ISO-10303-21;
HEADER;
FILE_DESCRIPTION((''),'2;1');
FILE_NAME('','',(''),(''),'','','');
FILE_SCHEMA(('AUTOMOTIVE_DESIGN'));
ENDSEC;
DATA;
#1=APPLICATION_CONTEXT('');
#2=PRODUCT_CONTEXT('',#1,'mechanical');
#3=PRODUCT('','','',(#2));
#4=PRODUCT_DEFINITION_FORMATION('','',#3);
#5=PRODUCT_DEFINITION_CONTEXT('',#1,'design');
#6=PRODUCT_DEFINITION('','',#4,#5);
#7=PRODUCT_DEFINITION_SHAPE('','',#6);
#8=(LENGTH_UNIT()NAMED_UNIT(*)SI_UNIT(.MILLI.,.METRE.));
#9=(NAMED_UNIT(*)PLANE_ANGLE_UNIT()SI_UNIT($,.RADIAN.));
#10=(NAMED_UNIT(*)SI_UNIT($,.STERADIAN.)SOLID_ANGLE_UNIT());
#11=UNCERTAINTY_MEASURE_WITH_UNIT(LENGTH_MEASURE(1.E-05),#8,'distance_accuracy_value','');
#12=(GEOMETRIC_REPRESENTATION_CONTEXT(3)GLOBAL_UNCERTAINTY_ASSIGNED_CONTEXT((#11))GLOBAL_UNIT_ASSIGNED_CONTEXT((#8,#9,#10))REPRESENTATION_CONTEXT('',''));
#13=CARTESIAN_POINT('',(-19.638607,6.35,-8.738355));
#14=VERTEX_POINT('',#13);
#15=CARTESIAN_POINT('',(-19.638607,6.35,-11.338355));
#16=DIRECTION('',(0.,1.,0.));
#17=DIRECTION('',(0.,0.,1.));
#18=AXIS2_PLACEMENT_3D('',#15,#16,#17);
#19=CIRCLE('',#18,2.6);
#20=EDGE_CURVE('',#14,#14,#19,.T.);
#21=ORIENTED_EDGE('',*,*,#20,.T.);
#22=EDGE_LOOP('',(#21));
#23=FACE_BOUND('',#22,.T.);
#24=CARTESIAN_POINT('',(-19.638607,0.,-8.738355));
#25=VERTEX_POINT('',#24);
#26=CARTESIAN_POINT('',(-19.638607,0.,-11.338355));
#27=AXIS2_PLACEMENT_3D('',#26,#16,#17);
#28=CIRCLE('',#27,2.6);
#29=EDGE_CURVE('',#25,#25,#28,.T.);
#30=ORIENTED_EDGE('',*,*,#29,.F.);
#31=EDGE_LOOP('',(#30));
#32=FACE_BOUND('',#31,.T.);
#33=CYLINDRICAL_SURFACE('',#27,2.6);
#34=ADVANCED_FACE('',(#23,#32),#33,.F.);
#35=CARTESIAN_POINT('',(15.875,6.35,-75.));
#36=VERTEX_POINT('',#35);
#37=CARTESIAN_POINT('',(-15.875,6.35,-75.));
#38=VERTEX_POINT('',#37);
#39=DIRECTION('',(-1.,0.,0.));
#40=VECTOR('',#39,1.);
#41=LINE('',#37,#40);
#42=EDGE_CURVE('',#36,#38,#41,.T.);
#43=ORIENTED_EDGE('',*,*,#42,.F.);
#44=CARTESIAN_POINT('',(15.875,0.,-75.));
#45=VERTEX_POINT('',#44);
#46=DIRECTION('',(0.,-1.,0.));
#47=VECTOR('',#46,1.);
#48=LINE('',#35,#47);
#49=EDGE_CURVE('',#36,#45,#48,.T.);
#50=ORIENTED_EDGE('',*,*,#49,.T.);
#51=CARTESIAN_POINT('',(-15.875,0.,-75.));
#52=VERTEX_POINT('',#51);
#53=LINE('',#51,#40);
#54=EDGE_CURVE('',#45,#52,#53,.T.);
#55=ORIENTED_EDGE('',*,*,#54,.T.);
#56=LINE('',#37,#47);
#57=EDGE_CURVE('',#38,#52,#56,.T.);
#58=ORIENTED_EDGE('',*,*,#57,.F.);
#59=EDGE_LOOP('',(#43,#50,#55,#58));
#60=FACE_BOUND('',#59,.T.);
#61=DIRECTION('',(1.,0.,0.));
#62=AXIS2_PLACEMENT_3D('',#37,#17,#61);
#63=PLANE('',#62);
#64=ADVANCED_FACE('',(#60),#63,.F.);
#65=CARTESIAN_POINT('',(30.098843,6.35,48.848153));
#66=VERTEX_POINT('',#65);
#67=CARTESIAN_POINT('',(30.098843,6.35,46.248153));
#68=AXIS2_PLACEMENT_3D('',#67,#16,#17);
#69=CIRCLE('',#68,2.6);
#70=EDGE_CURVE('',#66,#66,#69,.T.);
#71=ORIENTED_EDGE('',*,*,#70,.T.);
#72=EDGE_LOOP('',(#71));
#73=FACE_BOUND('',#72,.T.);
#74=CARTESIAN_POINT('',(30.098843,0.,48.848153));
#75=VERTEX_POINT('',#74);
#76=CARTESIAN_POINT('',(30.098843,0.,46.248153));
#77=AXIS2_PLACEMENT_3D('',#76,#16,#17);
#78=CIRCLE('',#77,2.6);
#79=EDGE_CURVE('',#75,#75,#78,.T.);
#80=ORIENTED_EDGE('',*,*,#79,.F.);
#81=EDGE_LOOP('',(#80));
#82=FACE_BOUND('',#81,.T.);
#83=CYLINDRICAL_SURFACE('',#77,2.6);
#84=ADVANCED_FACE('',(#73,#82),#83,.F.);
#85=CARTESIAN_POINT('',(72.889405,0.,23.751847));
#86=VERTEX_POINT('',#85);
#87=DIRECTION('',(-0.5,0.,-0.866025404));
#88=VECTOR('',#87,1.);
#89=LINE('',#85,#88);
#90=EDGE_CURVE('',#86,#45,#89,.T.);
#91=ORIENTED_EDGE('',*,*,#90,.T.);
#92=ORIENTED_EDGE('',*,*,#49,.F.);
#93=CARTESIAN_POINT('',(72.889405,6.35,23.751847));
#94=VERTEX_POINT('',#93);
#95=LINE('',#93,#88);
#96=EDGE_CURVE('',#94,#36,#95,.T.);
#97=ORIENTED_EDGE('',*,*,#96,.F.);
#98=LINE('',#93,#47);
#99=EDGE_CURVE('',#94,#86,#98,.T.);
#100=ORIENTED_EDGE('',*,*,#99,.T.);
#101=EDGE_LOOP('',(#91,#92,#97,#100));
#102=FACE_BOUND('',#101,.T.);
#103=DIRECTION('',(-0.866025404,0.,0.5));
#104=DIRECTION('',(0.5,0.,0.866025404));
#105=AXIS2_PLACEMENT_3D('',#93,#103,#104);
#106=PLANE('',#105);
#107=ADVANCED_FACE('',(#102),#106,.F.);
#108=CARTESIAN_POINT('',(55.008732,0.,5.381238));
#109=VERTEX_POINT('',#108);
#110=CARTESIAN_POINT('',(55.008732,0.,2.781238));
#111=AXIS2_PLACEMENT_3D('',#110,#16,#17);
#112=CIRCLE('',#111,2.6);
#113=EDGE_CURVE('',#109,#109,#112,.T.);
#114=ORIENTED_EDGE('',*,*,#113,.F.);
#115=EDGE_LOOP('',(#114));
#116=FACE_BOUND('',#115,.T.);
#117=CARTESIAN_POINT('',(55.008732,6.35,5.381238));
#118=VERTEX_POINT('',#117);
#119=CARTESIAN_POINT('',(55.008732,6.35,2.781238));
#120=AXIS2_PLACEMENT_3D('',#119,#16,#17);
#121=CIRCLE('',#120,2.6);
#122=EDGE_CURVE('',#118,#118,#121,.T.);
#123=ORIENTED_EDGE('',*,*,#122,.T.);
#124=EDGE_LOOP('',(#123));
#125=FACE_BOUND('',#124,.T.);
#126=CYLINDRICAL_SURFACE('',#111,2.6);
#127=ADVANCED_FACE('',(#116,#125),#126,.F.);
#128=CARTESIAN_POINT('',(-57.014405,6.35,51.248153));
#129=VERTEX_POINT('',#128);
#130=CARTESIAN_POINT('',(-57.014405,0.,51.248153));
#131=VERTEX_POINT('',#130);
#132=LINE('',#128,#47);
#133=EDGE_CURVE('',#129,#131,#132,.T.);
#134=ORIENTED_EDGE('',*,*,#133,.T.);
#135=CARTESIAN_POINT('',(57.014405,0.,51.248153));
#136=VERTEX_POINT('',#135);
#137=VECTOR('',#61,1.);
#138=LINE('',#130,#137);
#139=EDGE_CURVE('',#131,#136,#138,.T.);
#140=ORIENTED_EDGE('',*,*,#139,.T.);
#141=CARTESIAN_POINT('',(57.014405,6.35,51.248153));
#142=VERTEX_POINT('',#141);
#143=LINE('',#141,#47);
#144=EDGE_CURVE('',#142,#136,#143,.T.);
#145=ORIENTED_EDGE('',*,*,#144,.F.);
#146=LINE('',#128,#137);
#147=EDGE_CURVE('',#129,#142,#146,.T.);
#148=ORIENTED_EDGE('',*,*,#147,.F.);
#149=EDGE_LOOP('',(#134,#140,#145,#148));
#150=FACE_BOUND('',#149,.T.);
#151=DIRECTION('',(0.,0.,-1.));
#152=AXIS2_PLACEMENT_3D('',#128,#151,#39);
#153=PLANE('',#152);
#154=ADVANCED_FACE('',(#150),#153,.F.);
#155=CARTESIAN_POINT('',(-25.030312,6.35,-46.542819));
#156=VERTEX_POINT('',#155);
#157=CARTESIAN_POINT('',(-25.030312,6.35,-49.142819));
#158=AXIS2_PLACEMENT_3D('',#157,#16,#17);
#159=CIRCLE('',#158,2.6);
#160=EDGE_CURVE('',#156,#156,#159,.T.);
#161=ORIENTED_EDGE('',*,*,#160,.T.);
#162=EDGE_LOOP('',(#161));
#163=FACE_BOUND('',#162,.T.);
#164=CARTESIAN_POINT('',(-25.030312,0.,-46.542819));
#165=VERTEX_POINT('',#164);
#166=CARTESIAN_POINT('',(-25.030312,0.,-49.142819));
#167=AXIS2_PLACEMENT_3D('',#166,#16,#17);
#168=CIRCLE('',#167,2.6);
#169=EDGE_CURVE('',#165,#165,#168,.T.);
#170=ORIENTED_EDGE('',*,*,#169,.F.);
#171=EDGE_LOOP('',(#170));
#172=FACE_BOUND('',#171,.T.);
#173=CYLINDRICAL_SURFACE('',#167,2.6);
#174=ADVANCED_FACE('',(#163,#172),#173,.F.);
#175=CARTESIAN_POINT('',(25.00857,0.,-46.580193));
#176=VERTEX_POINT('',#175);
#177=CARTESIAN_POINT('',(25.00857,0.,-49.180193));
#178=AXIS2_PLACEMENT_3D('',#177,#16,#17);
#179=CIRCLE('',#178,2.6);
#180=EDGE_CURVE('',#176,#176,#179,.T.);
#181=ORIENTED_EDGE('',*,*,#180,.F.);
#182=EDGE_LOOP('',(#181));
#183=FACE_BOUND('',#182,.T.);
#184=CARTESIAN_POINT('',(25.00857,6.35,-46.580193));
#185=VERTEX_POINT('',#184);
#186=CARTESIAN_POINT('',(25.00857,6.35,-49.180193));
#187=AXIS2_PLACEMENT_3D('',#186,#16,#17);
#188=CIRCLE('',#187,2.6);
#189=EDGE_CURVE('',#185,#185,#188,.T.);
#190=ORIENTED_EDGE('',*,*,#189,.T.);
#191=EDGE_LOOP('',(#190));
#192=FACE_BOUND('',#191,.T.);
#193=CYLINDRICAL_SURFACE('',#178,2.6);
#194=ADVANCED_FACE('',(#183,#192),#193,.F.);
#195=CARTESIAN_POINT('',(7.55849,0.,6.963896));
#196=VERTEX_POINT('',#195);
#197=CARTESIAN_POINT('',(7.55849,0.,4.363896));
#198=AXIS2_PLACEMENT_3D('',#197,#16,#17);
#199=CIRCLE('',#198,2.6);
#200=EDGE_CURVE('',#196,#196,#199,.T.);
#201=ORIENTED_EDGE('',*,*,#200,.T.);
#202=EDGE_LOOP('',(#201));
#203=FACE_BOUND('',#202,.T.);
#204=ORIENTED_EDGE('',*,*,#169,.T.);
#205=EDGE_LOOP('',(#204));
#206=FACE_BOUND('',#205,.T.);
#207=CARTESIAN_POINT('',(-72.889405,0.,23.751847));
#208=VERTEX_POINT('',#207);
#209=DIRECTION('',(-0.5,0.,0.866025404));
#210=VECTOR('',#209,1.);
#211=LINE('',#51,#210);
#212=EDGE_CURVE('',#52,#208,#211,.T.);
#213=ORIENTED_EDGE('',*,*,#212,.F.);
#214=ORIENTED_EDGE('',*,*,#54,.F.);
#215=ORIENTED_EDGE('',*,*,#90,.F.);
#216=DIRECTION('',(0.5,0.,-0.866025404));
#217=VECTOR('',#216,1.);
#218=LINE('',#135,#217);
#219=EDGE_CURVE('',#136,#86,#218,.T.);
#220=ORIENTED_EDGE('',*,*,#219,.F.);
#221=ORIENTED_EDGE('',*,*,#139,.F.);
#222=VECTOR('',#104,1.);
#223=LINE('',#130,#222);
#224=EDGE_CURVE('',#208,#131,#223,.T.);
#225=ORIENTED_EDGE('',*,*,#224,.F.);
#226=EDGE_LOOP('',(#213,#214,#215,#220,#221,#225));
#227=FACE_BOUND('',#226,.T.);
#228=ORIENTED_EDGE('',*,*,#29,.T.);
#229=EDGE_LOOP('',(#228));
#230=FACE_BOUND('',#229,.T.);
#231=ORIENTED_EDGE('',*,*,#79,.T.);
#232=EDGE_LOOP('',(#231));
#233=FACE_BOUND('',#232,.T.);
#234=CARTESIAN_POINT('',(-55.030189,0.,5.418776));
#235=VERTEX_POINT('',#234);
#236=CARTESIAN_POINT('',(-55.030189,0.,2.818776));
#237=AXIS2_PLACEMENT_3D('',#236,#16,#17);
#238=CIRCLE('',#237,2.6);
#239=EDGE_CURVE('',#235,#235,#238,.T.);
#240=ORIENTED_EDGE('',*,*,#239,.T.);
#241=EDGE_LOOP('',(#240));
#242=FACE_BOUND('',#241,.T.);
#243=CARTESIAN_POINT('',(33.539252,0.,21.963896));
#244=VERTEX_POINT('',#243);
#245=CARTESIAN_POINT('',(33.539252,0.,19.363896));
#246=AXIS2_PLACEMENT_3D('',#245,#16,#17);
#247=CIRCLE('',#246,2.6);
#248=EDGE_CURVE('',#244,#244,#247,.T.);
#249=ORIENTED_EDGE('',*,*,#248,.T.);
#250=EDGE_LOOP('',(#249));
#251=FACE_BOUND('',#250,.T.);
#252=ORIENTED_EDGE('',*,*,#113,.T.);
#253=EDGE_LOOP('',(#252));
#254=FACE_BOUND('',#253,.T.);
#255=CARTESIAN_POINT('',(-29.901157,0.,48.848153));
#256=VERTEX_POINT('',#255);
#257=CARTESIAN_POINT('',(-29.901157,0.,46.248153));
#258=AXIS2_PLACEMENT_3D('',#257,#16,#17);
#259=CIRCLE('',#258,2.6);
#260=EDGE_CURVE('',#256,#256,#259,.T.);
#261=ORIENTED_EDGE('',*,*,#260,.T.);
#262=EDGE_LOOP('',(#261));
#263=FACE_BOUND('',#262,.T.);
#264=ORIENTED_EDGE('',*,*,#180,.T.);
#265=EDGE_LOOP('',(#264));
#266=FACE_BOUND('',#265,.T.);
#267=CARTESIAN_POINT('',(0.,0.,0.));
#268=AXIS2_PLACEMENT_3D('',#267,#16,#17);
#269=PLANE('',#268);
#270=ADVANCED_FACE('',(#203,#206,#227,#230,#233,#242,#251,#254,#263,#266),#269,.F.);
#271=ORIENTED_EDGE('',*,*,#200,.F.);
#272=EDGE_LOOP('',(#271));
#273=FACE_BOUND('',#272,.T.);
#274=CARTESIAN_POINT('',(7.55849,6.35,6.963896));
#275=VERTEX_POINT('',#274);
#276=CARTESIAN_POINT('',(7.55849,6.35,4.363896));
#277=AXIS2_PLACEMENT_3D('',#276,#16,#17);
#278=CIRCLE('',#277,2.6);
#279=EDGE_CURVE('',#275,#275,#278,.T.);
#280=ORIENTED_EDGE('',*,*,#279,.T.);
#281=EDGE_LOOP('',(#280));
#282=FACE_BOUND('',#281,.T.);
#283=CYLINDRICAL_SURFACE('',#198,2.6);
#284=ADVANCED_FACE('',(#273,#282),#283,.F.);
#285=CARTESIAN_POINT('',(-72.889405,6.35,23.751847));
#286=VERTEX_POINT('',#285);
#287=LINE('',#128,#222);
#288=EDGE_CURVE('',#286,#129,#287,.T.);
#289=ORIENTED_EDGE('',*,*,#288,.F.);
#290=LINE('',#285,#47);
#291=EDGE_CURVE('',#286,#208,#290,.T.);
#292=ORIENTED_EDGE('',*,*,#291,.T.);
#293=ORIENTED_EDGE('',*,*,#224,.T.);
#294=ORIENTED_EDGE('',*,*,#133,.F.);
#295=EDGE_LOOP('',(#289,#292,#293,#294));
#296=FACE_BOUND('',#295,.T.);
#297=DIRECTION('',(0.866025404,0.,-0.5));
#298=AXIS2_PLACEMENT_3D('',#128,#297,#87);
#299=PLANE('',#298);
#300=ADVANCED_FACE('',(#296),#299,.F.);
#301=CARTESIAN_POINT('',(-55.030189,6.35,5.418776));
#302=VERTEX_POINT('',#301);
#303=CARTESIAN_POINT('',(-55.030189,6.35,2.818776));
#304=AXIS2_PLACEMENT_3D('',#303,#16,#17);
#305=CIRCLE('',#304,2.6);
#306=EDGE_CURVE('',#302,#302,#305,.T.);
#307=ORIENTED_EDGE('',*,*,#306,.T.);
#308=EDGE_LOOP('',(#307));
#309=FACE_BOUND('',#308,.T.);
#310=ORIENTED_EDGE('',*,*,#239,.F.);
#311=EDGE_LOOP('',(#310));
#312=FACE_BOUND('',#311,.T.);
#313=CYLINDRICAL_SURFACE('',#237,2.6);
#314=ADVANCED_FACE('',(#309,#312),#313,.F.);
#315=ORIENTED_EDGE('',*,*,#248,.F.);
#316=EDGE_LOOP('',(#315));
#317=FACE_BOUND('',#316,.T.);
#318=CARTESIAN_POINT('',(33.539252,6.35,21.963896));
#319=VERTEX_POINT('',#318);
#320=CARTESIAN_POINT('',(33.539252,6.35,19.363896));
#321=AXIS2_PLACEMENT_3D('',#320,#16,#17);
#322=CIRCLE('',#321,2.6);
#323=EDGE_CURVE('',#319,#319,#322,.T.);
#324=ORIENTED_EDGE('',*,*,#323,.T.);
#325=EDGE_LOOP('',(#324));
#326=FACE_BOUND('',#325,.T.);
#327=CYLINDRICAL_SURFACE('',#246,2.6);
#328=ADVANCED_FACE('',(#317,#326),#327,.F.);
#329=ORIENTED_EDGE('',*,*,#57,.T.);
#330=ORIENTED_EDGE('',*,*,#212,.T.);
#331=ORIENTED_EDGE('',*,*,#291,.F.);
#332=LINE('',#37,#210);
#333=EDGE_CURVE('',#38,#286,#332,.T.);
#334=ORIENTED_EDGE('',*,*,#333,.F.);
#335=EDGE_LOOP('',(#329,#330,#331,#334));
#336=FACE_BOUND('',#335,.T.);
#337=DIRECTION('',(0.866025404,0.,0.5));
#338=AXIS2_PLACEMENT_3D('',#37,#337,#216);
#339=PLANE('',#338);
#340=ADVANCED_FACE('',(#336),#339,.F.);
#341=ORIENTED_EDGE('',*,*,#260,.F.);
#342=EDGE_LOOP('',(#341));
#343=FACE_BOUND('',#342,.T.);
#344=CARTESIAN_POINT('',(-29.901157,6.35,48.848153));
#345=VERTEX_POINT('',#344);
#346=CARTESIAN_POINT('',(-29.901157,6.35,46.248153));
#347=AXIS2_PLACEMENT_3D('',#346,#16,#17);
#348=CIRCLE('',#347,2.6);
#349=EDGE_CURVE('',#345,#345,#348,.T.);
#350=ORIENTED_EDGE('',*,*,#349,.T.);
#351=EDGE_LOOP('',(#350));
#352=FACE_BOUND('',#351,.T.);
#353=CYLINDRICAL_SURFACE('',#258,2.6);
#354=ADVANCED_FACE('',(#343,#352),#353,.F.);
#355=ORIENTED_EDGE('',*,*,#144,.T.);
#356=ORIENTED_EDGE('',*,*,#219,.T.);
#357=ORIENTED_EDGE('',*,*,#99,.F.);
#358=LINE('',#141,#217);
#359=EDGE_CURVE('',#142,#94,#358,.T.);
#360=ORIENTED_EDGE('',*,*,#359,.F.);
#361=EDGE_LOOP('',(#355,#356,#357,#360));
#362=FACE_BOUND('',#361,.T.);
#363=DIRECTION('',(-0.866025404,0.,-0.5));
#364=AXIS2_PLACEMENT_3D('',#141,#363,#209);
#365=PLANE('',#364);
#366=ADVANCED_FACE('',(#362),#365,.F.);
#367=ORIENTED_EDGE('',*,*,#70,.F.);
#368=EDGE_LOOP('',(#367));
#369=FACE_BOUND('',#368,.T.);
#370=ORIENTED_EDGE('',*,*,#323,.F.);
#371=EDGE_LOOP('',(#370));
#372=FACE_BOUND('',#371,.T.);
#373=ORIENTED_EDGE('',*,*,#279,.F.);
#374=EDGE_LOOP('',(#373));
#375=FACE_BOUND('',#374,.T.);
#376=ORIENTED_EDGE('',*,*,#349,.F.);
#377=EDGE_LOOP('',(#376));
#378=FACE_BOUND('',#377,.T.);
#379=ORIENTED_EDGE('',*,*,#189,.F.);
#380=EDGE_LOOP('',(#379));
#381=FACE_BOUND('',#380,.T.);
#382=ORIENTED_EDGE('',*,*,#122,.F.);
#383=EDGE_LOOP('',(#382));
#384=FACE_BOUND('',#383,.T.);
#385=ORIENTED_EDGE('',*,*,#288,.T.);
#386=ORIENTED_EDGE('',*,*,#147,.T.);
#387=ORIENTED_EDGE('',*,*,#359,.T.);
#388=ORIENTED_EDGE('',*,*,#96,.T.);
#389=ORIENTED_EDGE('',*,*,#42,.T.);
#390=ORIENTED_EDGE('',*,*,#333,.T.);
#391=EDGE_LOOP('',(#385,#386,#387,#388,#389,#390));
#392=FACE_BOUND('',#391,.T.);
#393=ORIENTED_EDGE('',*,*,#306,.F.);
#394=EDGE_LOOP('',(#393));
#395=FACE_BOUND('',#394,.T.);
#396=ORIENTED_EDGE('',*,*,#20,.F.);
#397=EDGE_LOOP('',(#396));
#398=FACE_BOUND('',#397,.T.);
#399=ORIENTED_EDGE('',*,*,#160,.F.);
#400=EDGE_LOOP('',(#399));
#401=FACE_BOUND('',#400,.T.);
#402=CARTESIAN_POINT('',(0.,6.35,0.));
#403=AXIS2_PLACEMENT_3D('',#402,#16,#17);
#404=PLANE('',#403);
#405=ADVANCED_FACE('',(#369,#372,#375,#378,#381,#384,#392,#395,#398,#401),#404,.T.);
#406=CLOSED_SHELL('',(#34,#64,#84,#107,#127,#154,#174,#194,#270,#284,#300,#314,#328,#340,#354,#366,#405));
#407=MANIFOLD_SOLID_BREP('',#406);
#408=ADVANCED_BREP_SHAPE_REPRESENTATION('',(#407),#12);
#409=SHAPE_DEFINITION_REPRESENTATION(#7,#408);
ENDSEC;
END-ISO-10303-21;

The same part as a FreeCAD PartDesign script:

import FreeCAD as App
import Part
import Sketcher
from FreeCAD import Vector
Q = App.Units.Quantity


def add_polygon(sketch, points):
    """Adds a closed chain of lines whose ends are joined by coincident constraints."""
    first, n = sketch.GeometryCount, len(points)
    for a, b in zip(points, points[1:] + points[:1]):
        sketch.addGeometry(Part.LineSegment(App.Vector(*a, 0), App.Vector(*b, 0)), False)
    for i in range(n):
        sketch.addConstraint(Sketcher.Constraint("Coincident", first + i, 2, first + (i + 1) % n, 1))

doc = App.newDocument("Part")
body = doc.addObject("PartDesign::Body", "Body")

sketch1 = body.newObject("Sketcher::SketchObject", "Sketch")
sketch1.AttachmentSupport = (doc.getObject("XZ_Plane"), [""])
sketch1.MapMode = "FlatFace"
add_polygon(sketch1, [(15.875, -75), (-15.875, -75), (-72.889405, 23.751847), (-57.014405, 51.248153), (57.014405, 51.248153), (72.889405, 23.751847)])
sketch1.addConstraint([
    Sketcher.Constraint("Horizontal", 0),
    Sketcher.Constraint("Horizontal", 3),
    Sketcher.Constraint("Symmetric", 1, 2, 4, 2, -2),
    Sketcher.Constraint("Parallel", 1, 4),
    Sketcher.Constraint("Parallel", 2, 5),
    Sketcher.Constraint("Equal", 2, 4),
    Sketcher.Constraint("Angle", 1, Q("120 deg")),
    Sketcher.Constraint("DistanceX", 0, 2, 0, 1, Q("1.25 in")),
    Sketcher.Constraint("Distance", 2, Q("1.25 in")),
    Sketcher.Constraint("DistanceX", 3, 1, 3, 2, Q("114.028811 mm")),
    Sketcher.Constraint("DistanceY", 0, 2, -1, 1, Q("75 mm")),
])
pad1 = body.newObject("PartDesign::Pad", "Pad")
pad1.Profile = sketch1
pad1.Length = Q("0.25 in")
pad1.Reversed = True

sketch2 = body.newObject("Sketcher::SketchObject", "Sketch001")
sketch2.AttachmentSupport = (doc.getObject("XZ_Plane"), [""])
sketch2.MapMode = "FlatFace"
sketch2.AttachmentOffset = App.Placement(Vector(0, 0, -0.25 * 25.4), App.Rotation())
sketch2.addGeometry([
    Part.Circle(Vector(-25.030312, -49.142819, 0), Vector(0, 0, 1), 2.6),
    Part.Circle(Vector(25.00857, -49.180193, 0), Vector(0, 0, 1), 2.6),
    Part.Circle(Vector(55.008732, 2.781238, 0), Vector(0, 0, 1), 2.6),
    Part.Circle(Vector(30.098843, 46.248153, 0), Vector(0, 0, 1), 2.6),
    Part.Circle(Vector(-55.030189, 2.818776, 0), Vector(0, 0, 1), 2.6),
    Part.Circle(Vector(-29.901157, 46.248153, 0), Vector(0, 0, 1), 2.6),
], False)
sketch2.addConstraint([
    Sketcher.Constraint("Equal", 0, 1),
    Sketcher.Constraint("Equal", 1, 2),
    Sketcher.Constraint("Equal", 2, 3),
    Sketcher.Constraint("Equal", 3, 4),
    Sketcher.Constraint("Equal", 4, 5),
    Sketcher.Constraint("Horizontal", 3, 3, 5, 3),
    Sketcher.Constraint("Diameter", 0, Q("5.2 mm")),
    Sketcher.Constraint("DistanceX", 5, 3, 3, 3, Q("60 mm")),
    Sketcher.Constraint("DistanceY", 0, 3, -1, 1, Q("49.142819 mm")),
    Sketcher.Constraint("DistanceX", -1, 1, 1, 3, Q("25.00857 mm")),
    Sketcher.Constraint("DistanceX", -1, 1, 2, 3, Q("55.008732 mm")),
    Sketcher.Constraint("DistanceY", -1, 1, 2, 3, Q("2.781238 mm")),
    Sketcher.Constraint("DistanceX", 4, 3, -1, 1, Q("55.030189 mm")),
    Sketcher.Constraint("DistanceY", 1, 3, 2, 3, Q("51.961431 mm")),
    Sketcher.Constraint("DistanceX", 3, 3, 2, 3, Q("24.909889 mm")),
    Sketcher.Constraint("DistanceY", 1, 3, 4, 3, Q("51.998969 mm")),
    Sketcher.Constraint("DistanceX", 0, 3, -1, 1, Q("25.030312 mm")),
    Sketcher.Constraint("DistanceY", -1, 1, 3, 3, Q("46.248153 mm")),
])
pocket1 = body.newObject("PartDesign::Pocket", "Pocket")
pocket1.Profile = sketch2
pocket1.Type = "ThroughAll"
pocket1.Reversed = True

sketch3 = body.newObject("Sketcher::SketchObject", "Sketch002")
sketch3.AttachmentSupport = (doc.getObject("XZ_Plane"), [""])
sketch3.MapMode = "FlatFace"
sketch3.AttachmentOffset = App.Placement(Vector(0, 0, -0.25 * 25.4), App.Rotation())
sketch3.addGeometry([
    Part.Circle(Vector(33.539252, 19.363896, 0), Vector(0, 0, 1), 2.6),
    Part.Circle(Vector(7.55849, 4.363896, 0), Vector(0, 0, 1), 2.6),
    Part.Circle(Vector(-19.638607, -11.338355, 0), Vector(0, 0, 1), 2.6),
], False)
sketch3.addConstraint([
    Sketcher.Constraint("Equal", 0, 1),
    Sketcher.Constraint("Equal", 1, 2),
    Sketcher.Constraint("Diameter", 0, Q("5.2 mm")),
    Sketcher.Constraint("DistanceY", 1, 3, 0, 3, Q("15 mm")),
    Sketcher.Constraint("DistanceX", -1, 1, 0, 3, Q("33.539252 mm")),
    Sketcher.Constraint("DistanceX", -1, 1, 1, 3, Q("7.55849 mm")),
    Sketcher.Constraint("DistanceY", 2, 3, 1, 3, Q("15.702251 mm")),
    Sketcher.Constraint("DistanceX", 2, 3, 0, 3, Q("53.177859 mm")),
    Sketcher.Constraint("DistanceY", -1, 1, 0, 3, Q("19.363896 mm")),
])
pocket2 = body.newObject("PartDesign::Pocket", "Pocket001")
pocket2.Profile = sketch3
pocket2.Type = "ThroughAll"
pocket2.Reversed = True

doc.recompute()
